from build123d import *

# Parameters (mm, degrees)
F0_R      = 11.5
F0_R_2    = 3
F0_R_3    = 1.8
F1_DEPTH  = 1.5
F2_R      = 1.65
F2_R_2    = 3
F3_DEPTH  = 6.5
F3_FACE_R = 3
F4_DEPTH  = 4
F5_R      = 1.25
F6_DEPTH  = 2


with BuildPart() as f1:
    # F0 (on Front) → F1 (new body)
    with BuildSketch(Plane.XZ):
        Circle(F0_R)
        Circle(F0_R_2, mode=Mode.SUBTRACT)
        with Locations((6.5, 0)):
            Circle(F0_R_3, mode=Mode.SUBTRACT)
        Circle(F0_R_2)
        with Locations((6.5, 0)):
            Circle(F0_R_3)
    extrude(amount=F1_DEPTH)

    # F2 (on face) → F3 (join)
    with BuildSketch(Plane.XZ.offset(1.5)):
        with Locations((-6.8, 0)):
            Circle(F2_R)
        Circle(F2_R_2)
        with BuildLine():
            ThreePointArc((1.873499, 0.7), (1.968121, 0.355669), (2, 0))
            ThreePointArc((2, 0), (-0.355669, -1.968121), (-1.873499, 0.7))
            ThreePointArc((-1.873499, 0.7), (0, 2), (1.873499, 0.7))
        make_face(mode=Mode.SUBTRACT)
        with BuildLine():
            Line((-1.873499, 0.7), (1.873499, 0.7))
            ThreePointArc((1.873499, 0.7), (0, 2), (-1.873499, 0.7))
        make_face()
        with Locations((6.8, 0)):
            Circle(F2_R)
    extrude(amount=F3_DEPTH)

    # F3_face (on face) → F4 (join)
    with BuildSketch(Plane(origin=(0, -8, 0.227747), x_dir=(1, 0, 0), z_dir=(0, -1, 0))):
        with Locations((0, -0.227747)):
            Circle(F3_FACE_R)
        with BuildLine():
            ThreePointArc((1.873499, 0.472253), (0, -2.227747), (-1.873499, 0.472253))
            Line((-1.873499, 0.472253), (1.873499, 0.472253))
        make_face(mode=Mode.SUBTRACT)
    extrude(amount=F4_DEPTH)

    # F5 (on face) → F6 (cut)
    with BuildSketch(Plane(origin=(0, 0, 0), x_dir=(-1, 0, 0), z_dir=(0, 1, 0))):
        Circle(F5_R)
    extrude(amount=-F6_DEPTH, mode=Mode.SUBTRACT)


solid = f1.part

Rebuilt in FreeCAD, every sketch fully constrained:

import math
import FreeCAD as App
import Part
import Sketcher

V = App.Vector
Q = App.Units.Quantity

doc = App.newDocument("Part")
body = doc.addObject("PartDesign::Body", "Body")

sketch1 = body.newObject("Sketcher::SketchObject", "Sketch")
sketch1.AttachmentSupport = (doc.getObject("XZ_Plane"), [""])
sketch1.MapMode = "FlatFace"
sketch1.addGeometry(Part.Circle(V(0, 0, 0), V(0, 0, 1), 11.5), False)
sketch1.addConstraint([
    Sketcher.Constraint("Coincident", 0, 3, -1, 1),
    Sketcher.Constraint("Diameter", 0, Q("23 mm")),
])
pad1 = body.newObject("PartDesign::Pad", "Pad")
pad1.Profile = sketch1
pad1.Length = 1.5

sketch2 = body.newObject("Sketcher::SketchObject", "Sketch001")
sketch2.AttachmentSupport = (doc.getObject("XZ_Plane"), [""])
sketch2.MapMode = "FlatFace"
sketch2.AttachmentOffset = App.Placement(V(0, 0, 1.5), App.Rotation())
sketch2.addGeometry([
    Part.Circle(V(-6.8, 0, 0), V(0, 0, 1), 1.65),
    Part.Circle(V(0, 0, 0), V(0, 0, 1), 3),
    Part.ArcOfCircle(Part.Circle(V(0, 0, 0), V(0, 0, 1), 2), math.radians(159.512673), math.radians(360.00001)),
    Part.LineSegment(V(-1.873499, 0.7, 0), V(1.873499, 0.7, 0)),
    Part.ArcOfCircle(Part.Circle(V(0.000023, 0.000003, 0), V(0, 0, 1), 1.999977), math.radians(-0.000087), math.radians(20.487465)),
    Part.Circle(V(6.8, 0, 0), V(0, 0, 1), 1.65),
], False)
sketch2.addConstraint([
    Sketcher.Constraint("Coincident", 2, 1, 3, 1),
    Sketcher.Constraint("Coincident", 3, 2, 4, 2),
    Sketcher.Constraint("Tangent", 4, 1, 2, 2),
    Sketcher.Constraint("Horizontal", 3),
    Sketcher.Constraint("Coincident", 1, 3, -1, 1),
    Sketcher.Constraint("Coincident", 2, 3, -1, 1),
    Sketcher.Constraint("Equal", 0, 5),
    Sketcher.Constraint("Symmetric", 0, 3, 5, 3, -1, 1),
    Sketcher.Constraint("PointOnObject", 0, 3, -1),
    Sketcher.Constraint("PointOnObject", 4, 1, -1),
    Sketcher.Constraint("Diameter", 1, Q("6 mm")),
    Sketcher.Constraint("Radius", 2, Q("2 mm")),
    Sketcher.Constraint("Diameter", 0, Q("3.3 mm")),
    Sketcher.Constraint("DistanceX", 0, 3, -1, 1, Q("6.8 mm")),
    Sketcher.Constraint("DistanceY", -1, 1, 2, 1, Q("0.7 mm")),
    Sketcher.Constraint("DistanceX", 3, 1, 3, 2, Q("3.746998 mm")),
])
pad2 = body.newObject("PartDesign::Pad", "Pad001")
pad2.Profile = sketch2
pad2.Length = 6.5

sketch3 = body.newObject("Sketcher::SketchObject", "Sketch002")
sketch3.AttachmentSupport = (doc.getObject("XZ_Plane"), [""])
sketch3.MapMode = "FlatFace"
sketch3.AttachmentOffset = App.Placement(V(0, 0, 8), App.Rotation())
sketch3.addGeometry([
    Part.Circle(V(0, 0, 0), V(0, 0, 1), 3),
    Part.LineSegment(V(-1.873499, 0.7, 0), V(1.873499, 0.7, 0)),
    Part.ArcOfCircle(Part.Circle(V(0, 0, 0), V(0, 0, 1), 2), math.radians(159.512673), math.radians(380.487327)),
], False)
sketch3.addConstraint([
    Sketcher.Constraint("Coincident", 1, 1, 2, 1),
    Sketcher.Constraint("Coincident", 2, 2, 1, 2),
    Sketcher.Constraint("Horizontal", 1),
    Sketcher.Constraint("Coincident", 0, 3, -1, 1),
    Sketcher.Constraint("Coincident", 2, 3, -1, 1),
    Sketcher.Constraint("Diameter", 0, Q("6 mm")),
    Sketcher.Constraint("Radius", 2, Q("2 mm")),
    Sketcher.Constraint("DistanceY", -1, 1, 1, 1, Q("0.7 mm")),
])
pad3 = body.newObject("PartDesign::Pad", "Pad002")
pad3.Profile = sketch3
pad3.Length = 4

sketch4 = body.newObject("Sketcher::SketchObject", "Sketch003")
sketch4.AttachmentSupport = (doc.getObject("XZ_Plane"), [""])
sketch4.MapMode = "FlatFace"
sketch4.addGeometry(Part.Circle(V(0, 0, 0), V(0, 0, 1), 1.25), False)
sketch4.addConstraint([
    Sketcher.Constraint("Coincident", 0, 3, -1, 1),
    Sketcher.Constraint("Diameter", 0, Q("2.5 mm")),
])
pocket1 = body.newObject("PartDesign::Pocket", "Pocket")
pocket1.Profile = sketch4
pocket1.Length = 2
pocket1.Reversed = True

doc.recompute()
